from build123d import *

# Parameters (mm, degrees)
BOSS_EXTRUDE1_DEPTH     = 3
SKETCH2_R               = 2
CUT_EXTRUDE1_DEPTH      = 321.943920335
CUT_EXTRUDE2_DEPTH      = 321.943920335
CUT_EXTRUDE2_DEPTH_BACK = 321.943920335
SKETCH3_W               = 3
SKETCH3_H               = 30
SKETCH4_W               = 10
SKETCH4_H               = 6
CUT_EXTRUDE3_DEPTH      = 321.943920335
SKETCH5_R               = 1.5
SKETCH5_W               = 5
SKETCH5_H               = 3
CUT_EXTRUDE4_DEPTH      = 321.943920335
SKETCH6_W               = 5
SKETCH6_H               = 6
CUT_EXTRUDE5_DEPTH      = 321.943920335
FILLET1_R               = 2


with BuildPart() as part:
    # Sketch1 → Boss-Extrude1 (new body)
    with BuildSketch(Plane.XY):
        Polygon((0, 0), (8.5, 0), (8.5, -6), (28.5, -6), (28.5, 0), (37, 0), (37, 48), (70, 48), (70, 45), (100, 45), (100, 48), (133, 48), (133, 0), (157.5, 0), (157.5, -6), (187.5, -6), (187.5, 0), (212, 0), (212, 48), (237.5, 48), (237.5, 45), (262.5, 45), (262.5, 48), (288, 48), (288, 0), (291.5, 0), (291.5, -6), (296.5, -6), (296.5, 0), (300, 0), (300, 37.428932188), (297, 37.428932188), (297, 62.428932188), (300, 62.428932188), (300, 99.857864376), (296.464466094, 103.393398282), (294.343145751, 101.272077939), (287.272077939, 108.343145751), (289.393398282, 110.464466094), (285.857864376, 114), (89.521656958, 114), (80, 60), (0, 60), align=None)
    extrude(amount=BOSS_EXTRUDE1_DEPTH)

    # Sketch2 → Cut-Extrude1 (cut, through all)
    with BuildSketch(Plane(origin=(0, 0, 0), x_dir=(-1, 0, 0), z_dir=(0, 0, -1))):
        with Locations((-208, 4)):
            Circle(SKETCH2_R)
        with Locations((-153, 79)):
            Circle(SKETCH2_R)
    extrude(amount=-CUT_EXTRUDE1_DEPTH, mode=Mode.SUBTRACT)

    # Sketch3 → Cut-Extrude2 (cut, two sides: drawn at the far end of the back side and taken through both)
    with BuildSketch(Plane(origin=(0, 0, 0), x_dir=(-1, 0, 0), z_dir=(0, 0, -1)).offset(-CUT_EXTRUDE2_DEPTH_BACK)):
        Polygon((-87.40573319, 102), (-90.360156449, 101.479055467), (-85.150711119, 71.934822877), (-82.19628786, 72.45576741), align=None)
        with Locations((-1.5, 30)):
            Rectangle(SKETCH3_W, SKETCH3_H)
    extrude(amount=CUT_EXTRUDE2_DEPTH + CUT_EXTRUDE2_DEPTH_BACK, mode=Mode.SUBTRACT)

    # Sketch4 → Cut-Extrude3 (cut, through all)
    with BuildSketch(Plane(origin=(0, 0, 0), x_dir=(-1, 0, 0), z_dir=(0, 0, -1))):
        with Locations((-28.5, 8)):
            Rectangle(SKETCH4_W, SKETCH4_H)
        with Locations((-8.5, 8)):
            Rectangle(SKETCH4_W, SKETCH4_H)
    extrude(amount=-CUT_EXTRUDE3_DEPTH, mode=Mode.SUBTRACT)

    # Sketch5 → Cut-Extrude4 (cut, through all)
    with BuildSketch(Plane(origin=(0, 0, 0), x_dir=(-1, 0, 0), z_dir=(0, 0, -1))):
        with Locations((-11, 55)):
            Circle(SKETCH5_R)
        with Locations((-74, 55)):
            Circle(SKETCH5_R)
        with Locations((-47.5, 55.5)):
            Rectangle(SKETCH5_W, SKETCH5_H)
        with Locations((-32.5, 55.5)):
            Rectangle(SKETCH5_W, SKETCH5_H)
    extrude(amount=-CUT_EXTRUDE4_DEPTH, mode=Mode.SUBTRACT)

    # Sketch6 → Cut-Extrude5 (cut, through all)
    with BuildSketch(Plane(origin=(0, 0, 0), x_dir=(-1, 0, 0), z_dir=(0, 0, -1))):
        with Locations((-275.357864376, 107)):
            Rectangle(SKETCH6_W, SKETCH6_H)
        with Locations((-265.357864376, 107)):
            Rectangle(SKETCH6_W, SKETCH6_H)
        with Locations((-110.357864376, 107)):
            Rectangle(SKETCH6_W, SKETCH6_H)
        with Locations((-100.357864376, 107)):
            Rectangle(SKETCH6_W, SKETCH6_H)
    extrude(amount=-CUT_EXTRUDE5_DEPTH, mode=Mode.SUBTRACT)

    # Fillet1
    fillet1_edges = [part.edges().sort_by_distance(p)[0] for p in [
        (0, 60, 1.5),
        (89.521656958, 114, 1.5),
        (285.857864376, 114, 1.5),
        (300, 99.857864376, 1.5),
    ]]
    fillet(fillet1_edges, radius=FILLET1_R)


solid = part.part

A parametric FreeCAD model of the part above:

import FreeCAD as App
import Part
import Sketcher
Q = App.Units.Quantity


def edges_at(feature, points):
    """Names of the edges that pass closest to the given points."""
    edges = feature.Shape.Edges
    near = lambda p: min(range(len(edges)), key=lambda i: edges[i].distToShape(Part.Vertex(*p))[0])
    return sorted({f"Edge{near(p) + 1}" for p in points})


def add_polygon(sketch, points):
    """Adds a closed chain of lines whose ends are joined by coincident constraints."""
    first, n = sketch.GeometryCount, len(points)
    for a, b in zip(points, points[1:] + points[:1]):
        sketch.addGeometry(Part.LineSegment(App.Vector(*a, 0), App.Vector(*b, 0)), False)
    for i in range(n):
        sketch.addConstraint(Sketcher.Constraint("Coincident", first + i, 2, first + (i + 1) % n, 1))

doc = App.newDocument("Part")
body = doc.addObject("PartDesign::Body", "Body")

sketch1 = doc.addObject("Sketcher::SketchObject", "Sketch")
body.addObject(sketch1)
sketch1.AttachmentSupport = (doc.XY_Plane, [""])
sketch1.MapMode = "FlatFace"
add_polygon(sketch1, [(0, 0), (8.5, 0), (8.5, -6), (28.5, -6), (28.5, 0), (37, 0), (37, 48), (70, 48), (70, 45), (100, 45), (100, 48), (133, 48), (133, 0), (157.5, 0), (157.5, -6), (187.5, -6), (187.5, 0), (212, 0), (212, 48), (237.5, 48), (237.5, 45), (262.5, 45), (262.5, 48), (288, 48), (288, 0), (291.5, 0), (291.5, -6), (296.5, -6), (296.5, 0), (300, 0), (300, 37.428932), (297, 37.428932), (297, 62.428932), (300, 62.428932), (300, 99.857864), (296.464466, 103.393398), (294.343146, 101.272078), (287.272078, 108.343146), (289.393398, 110.464466), (285.857864, 114), (89.521657, 114), (80, 60), (0, 60)])
sketch1.addConstraint(Sketcher.Constraint("Horizontal", 0))
sketch1.addConstraint(Sketcher.Constraint("Vertical", 1))
sketch1.addConstraint(Sketcher.Constraint("Horizontal", 2))
sketch1.addConstraint(Sketcher.Constraint("Vertical", 3))
sketch1.addConstraint(Sketcher.Constraint("Horizontal", 4))
sketch1.addConstraint(Sketcher.Constraint("Vertical", 5))
sketch1.addConstraint(Sketcher.Constraint("Horizontal", 6))
sketch1.addConstraint(Sketcher.Constraint("Vertical", 7))
sketch1.addConstraint(Sketcher.Constraint("Horizontal", 8))
sketch1.addConstraint(Sketcher.Constraint("Vertical", 9))
sketch1.addConstraint(Sketcher.Constraint("Horizontal", 10))
sketch1.addConstraint(Sketcher.Constraint("Vertical", 11))
sketch1.addConstraint(Sketcher.Constraint("Horizontal", 12))
sketch1.addConstraint(Sketcher.Constraint("Vertical", 13))
sketch1.addConstraint(Sketcher.Constraint("Horizontal", 14))
sketch1.addConstraint(Sketcher.Constraint("Vertical", 15))
sketch1.addConstraint(Sketcher.Constraint("Horizontal", 16))
sketch1.addConstraint(Sketcher.Constraint("Vertical", 17))
sketch1.addConstraint(Sketcher.Constraint("Horizontal", 18))
sketch1.addConstraint(Sketcher.Constraint("Vertical", 19))
sketch1.addConstraint(Sketcher.Constraint("Horizontal", 20))
sketch1.addConstraint(Sketcher.Constraint("Vertical", 21))
sketch1.addConstraint(Sketcher.Constraint("Horizontal", 22))
sketch1.addConstraint(Sketcher.Constraint("Vertical", 23))
sketch1.addConstraint(Sketcher.Constraint("Horizontal", 24))
sketch1.addConstraint(Sketcher.Constraint("Vertical", 25))
sketch1.addConstraint(Sketcher.Constraint("Horizontal", 26))
sketch1.addConstraint(Sketcher.Constraint("Vertical", 27))
sketch1.addConstraint(Sketcher.Constraint("Horizontal", 28))
sketch1.addConstraint(Sketcher.Constraint("Vertical", 29))
sketch1.addConstraint(Sketcher.Constraint("Horizontal", 30))
sketch1.addConstraint(Sketcher.Constraint("Vertical", 31))
sketch1.addConstraint(Sketcher.Constraint("Horizontal", 32))
sketch1.addConstraint(Sketcher.Constraint("Vertical", 33))
sketch1.addConstraint(Sketcher.Constraint("Horizontal", 39))
sketch1.addConstraint(Sketcher.Constraint("Horizontal", 41))
sketch1.addConstraint(Sketcher.Constraint("Vertical", 42))
sketch1.addConstraint(Sketcher.Constraint("Coincident", 42, 2, -1, 1))
sketch1.addConstraint(Sketcher.Constraint("PointOnObject", 3, 2, -1))
sketch1.addConstraint(Sketcher.Constraint("PointOnObject", 11, 2, -1))
sketch1.addConstraint(Sketcher.Constraint("PointOnObject", 15, 2, -1))
sketch1.addConstraint(Sketcher.Constraint("PointOnObject", 23, 2, -1))
sketch1.addConstraint(Sketcher.Constraint("PointOnObject", 27, 2, -1))
sketch1.addConstraint(Sketcher.Constraint("Perpendicular", 34, 35))
sketch1.addConstraint(Sketcher.Constraint("Perpendicular", 35, 36))
sketch1.addConstraint(Sketcher.Constraint("Perpendicular", 36, 37))
sketch1.addConstraint(Sketcher.Constraint("Perpendicular", 37, 38))
sketch1.addConstraint(Sketcher.Constraint("Horizontal", 6, 2, 9, 2))
sketch1.addConstraint(Sketcher.Constraint("Horizontal", 2, 2, 13, 2))
sketch1.addConstraint(Sketcher.Constraint("Horizontal", 10, 2, 17, 2))
sketch1.addConstraint(Sketcher.Constraint("Horizontal", 8, 2, 19, 2))
sketch1.addConstraint(Sketcher.Constraint("Horizontal", 18, 2, 21, 2))
sketch1.addConstraint(Sketcher.Constraint("Horizontal", 14, 2, 25, 2))
sketch1.addConstraint(Sketcher.Constraint("Vertical", 29, 2, 32, 2))
sketch1.addConstraint(Sketcher.Constraint("Equal", 0, 4))
sketch1.addConstraint(Sketcher.Constraint("Equal", 6, 10))
sketch1.addConstraint(Sketcher.Constraint("Equal", 8, 14))
sketch1.addConstraint(Sketcher.Constraint("Equal", 12, 16))
sketch1.addConstraint(Sketcher.Constraint("Equal", 18, 22))
sketch1.addConstraint(Sketcher.Constraint("Equal", 24, 28))
sketch1.addConstraint(Sketcher.Constraint("Equal", 32, 7))
sketch1.addConstraint(Sketcher.Constraint("Equal", 20, 31))
sketch1.addConstraint(Sketcher.Constraint("Equal", 29, 33))
sketch1.addConstraint(Sketcher.Constraint("Equal", 35, 37))
sketch1.addConstraint(Sketcher.Constraint("Equal", 34, 38))
sketch1.addConstraint(Sketcher.Constraint("DistanceX", 2, 1, 2, 2, Q("20 mm")))
sketch1.addConstraint(Sketcher.Constraint("DistanceX", 6, 1, 6, 2, Q("33 mm")))
sketch1.addConstraint(Sketcher.Constraint("DistanceX", 8, 1, 8, 2, Q("30 mm")))
sketch1.addConstraint(Sketcher.Constraint("DistanceX", 20, 1, 20, 2, Q("25 mm")))
sketch1.addConstraint(Sketcher.Constraint("DistanceX", 26, 1, 26, 2, Q("5 mm")))
sketch1.addConstraint(Sketcher.Constraint("DistanceX", 30, 2, 30, 1, Q("3 mm")))
sketch1.addConstraint(Sketcher.Constraint("DistanceX", 41, 2, 41, 1, Q("80 mm")))
sketch1.addConstraint(Sketcher.Constraint("DistanceY", 1, 2, 1, 1, Q("6 mm")))
sketch1.addConstraint(Sketcher.Constraint("DistanceY", 5, 1, 5, 2, Q("48 mm")))
sketch1.addConstraint(Sketcher.Constraint("DistanceY", 42, 2, 42, 1, Q("60 mm")))
sketch1.addConstraint(Sketcher.Constraint("Angle", 34, Q("135 deg")))
sketch1.addConstraint(Sketcher.Constraint("Angle", 40, Q("-100 deg")))
sketch1.addConstraint(Sketcher.Constraint("Distance", 34, Q("5 mm")))
sketch1.addConstraint(Sketcher.Constraint("Distance", 35, Q("3 mm")))
sketch1.addConstraint(Sketcher.Constraint("Distance", 36, Q("10 mm")))
sketch1.addConstraint(Sketcher.Constraint("DistanceX", 0, 1, 0, 2, Q("8.5 mm")))
sketch1.addConstraint(Sketcher.Constraint("DistanceX", 12, 1, 12, 2, Q("24.5 mm")))
sketch1.addConstraint(Sketcher.Constraint("DistanceX", 18, 1, 18, 2, Q("25.5 mm")))
sketch1.addConstraint(Sketcher.Constraint("DistanceX", 24, 1, 24, 2, Q("3.5 mm")))
sketch1.addConstraint(Sketcher.Constraint("DistanceY", -1, 1, 38, 2, Q("114 mm")))
pad1 = doc.addObject("PartDesign::Pad", "Pad")
body.addObject(pad1)
pad1.Profile = sketch1
pad1.Length = 3

sketch2 = doc.addObject("Sketcher::SketchObject", "Sketch001")
body.addObject(sketch2)
sketch2.AttachmentSupport = (doc.XY_Plane, [""])
sketch2.MapMode = "FlatFace"
sketch2.addGeometry(Part.Circle(App.Vector(208, 4, 0), App.Vector(0, 0, 1), 2), False)
sketch2.addGeometry(Part.Circle(App.Vector(153, 79, 0), App.Vector(0, 0, 1), 2), False)
sketch2.addConstraint(Sketcher.Constraint("Equal", 0, 1))
sketch2.addConstraint(Sketcher.Constraint("Diameter", 0, Q("4 mm")))
sketch2.addConstraint(Sketcher.Constraint("DistanceX", -1, 1, 0, 3, Q("208 mm")))
sketch2.addConstraint(Sketcher.Constraint("DistanceY", -1, 1, 0, 3, Q("4 mm")))
sketch2.addConstraint(Sketcher.Constraint("DistanceX", -1, 1, 1, 3, Q("153 mm")))
sketch2.addConstraint(Sketcher.Constraint("DistanceY", -1, 1, 1, 3, Q("79 mm")))
pocket1 = doc.addObject("PartDesign::Pocket", "Pocket")
body.addObject(pocket1)
pocket1.Profile = sketch2
pocket1.Type = "ThroughAll"
pocket1.Reversed = True

sketch3 = doc.addObject("Sketcher::SketchObject", "Sketch002")
body.addObject(sketch3)
sketch3.AttachmentSupport = (doc.XY_Plane, [""])
sketch3.MapMode = "FlatFace"
add_polygon(sketch3, [(87.405733, 102), (90.360156, 101.479055), (85.150711, 71.934823), (82.196288, 72.455767)])
add_polygon(sketch3, [(3, 45), (3, 15), (0, 15), (0, 45)])
sketch3.addConstraint(Sketcher.Constraint("Vertical", 4))
sketch3.addConstraint(Sketcher.Constraint("Horizontal", 5))
sketch3.addConstraint(Sketcher.Constraint("Vertical", 6))
sketch3.addConstraint(Sketcher.Constraint("Horizontal", 7))
sketch3.addConstraint(Sketcher.Constraint("PointOnObject", 5, 2, -2))
sketch3.addConstraint(Sketcher.Constraint("Perpendicular", 0, 1))
sketch3.addConstraint(Sketcher.Constraint("Perpendicular", 1, 2))
sketch3.addConstraint(Sketcher.Constraint("Perpendicular", 2, 3))
sketch3.addConstraint(Sketcher.Constraint("DistanceX", 5, 2, 5, 1, Q("3 mm")))
sketch3.addConstraint(Sketcher.Constraint("DistanceY", 4, 2, 4, 1, Q("30 mm")))
sketch3.addConstraint(Sketcher.Constraint("Angle", 0, Q("-10 deg")))
sketch3.addConstraint(Sketcher.Constraint("Distance", 0, Q("3 mm")))
sketch3.addConstraint(Sketcher.Constraint("Distance", 1, Q("30 mm")))
sketch3.addConstraint(Sketcher.Constraint("DistanceY", -1, 1, 3, 2, Q("102 mm")))
sketch3.addConstraint(Sketcher.Constraint("DistanceY", -1, 1, 4, 2, Q("15 mm")))
sketch3.addConstraint(Sketcher.Constraint("DistanceX", -1, 1, 1, 2, Q("85.150711 mm")))
pocket2 = doc.addObject("PartDesign::Pocket", "Pocket001")
body.addObject(pocket2)
pocket2.Profile = sketch3
pocket2.Type = "ThroughAll"
pocket2.Midplane = True

sketch4 = doc.addObject("Sketcher::SketchObject", "Sketch003")
body.addObject(sketch4)
sketch4.AttachmentSupport = (doc.XY_Plane, [""])
sketch4.MapMode = "FlatFace"
add_polygon(sketch4, [(33.5, 11), (33.5, 5), (23.5, 5), (23.5, 11)])
add_polygon(sketch4, [(13.5, 11), (13.5, 5), (3.5, 5), (3.5, 11)])
sketch4.addConstraint(Sketcher.Constraint("Vertical", 0))
sketch4.addConstraint(Sketcher.Constraint("Horizontal", 1))
sketch4.addConstraint(Sketcher.Constraint("Vertical", 2))
sketch4.addConstraint(Sketcher.Constraint("Horizontal", 3))
sketch4.addConstraint(Sketcher.Constraint("Vertical", 4))
sketch4.addConstraint(Sketcher.Constraint("Horizontal", 5))
sketch4.addConstraint(Sketcher.Constraint("Vertical", 6))
sketch4.addConstraint(Sketcher.Constraint("Horizontal", 7))
sketch4.addConstraint(Sketcher.Constraint("Horizontal", 1, 2, 4, 2))
sketch4.addConstraint(Sketcher.Constraint("Horizontal", 3, 2, 6, 2))
sketch4.addConstraint(Sketcher.Constraint("Equal", 3, 5))
sketch4.addConstraint(Sketcher.Constraint("DistanceX", 1, 2, 1, 1, Q("10 mm")))
sketch4.addConstraint(Sketcher.Constraint("DistanceY", 0, 2, 0, 1, Q("6 mm")))
sketch4.addConstraint(Sketcher.Constraint("DistanceY", -1, 1, 0, 2, Q("5 mm")))
sketch4.addConstraint(Sketcher.Constraint("DistanceX", 4, 2, 1, 2, Q("10 mm")))
sketch4.addConstraint(Sketcher.Constraint("DistanceX", -1, 1, 0, 2, Q("33.5 mm")))
pocket3 = doc.addObject("PartDesign::Pocket", "Pocket002")
body.addObject(pocket3)
pocket3.Profile = sketch4
pocket3.Type = "ThroughAll"
pocket3.Reversed = True

sketch5 = doc.addObject("Sketcher::SketchObject", "Sketch004")
body.addObject(sketch5)
sketch5.AttachmentSupport = (doc.XY_Plane, [""])
sketch5.MapMode = "FlatFace"
sketch5.addGeometry(Part.Circle(App.Vector(11, 55, 0), App.Vector(0, 0, 1), 1.5), False)
sketch5.addGeometry(Part.Circle(App.Vector(74, 55, 0), App.Vector(0, 0, 1), 1.5), False)
add_polygon(sketch5, [(50, 57), (50, 54), (45, 54), (45, 57)])
add_polygon(sketch5, [(35, 57), (35, 54), (30, 54), (30, 57)])
sketch5.addConstraint(Sketcher.Constraint("Vertical", 2))
sketch5.addConstraint(Sketcher.Constraint("Horizontal", 3))
sketch5.addConstraint(Sketcher.Constraint("Vertical", 4))
sketch5.addConstraint(Sketcher.Constraint("Horizontal", 5))
sketch5.addConstraint(Sketcher.Constraint("Vertical", 6))
sketch5.addConstraint(Sketcher.Constraint("Horizontal", 7))
sketch5.addConstraint(Sketcher.Constraint("Vertical", 8))
sketch5.addConstraint(Sketcher.Constraint("Horizontal", 9))
sketch5.addConstraint(Sketcher.Constraint("Equal", 0, 1))
sketch5.addConstraint(Sketcher.Constraint("Horizontal", 0, 3, 1, 3))
sketch5.addConstraint(Sketcher.Constraint("Horizontal", 3, 2, 6, 2))
sketch5.addConstraint(Sketcher.Constraint("Horizontal", 5, 2, 8, 2))
sketch5.addConstraint(Sketcher.Constraint("Equal", 5, 7))
sketch5.addConstraint(Sketcher.Constraint("Diameter", 0, Q("3 mm")))
sketch5.addConstraint(Sketcher.Constraint("DistanceX", 3, 2, 3, 1, Q("5 mm")))
sketch5.addConstraint(Sketcher.Constraint("DistanceY", 2, 2, 2, 1, Q("3 mm")))
sketch5.addConstraint(Sketcher.Constraint("DistanceX", -1, 1, 0, 3, Q("11 mm")))
sketch5.addConstraint(Sketcher.Constraint("DistanceY", -1, 1, 0, 3, Q("55 mm")))
sketch5.addConstraint(Sketcher.Constraint("DistanceX", -1, 1, 1, 3, Q("74 mm")))
sketch5.addConstraint(Sketcher.Constraint("DistanceX", -1, 1, 2, 2, Q("50 mm")))
sketch5.addConstraint(Sketcher.Constraint("DistanceY", -1, 1, 2, 2, Q("54 mm")))
sketch5.addConstraint(Sketcher.Constraint("DistanceX", -1, 1, 6, 2, Q("35 mm")))
pocket4 = doc.addObject("PartDesign::Pocket", "Pocket003")
body.addObject(pocket4)
pocket4.Profile = sketch5
pocket4.Type = "ThroughAll"
pocket4.Reversed = True

sketch6 = doc.addObject("Sketcher::SketchObject", "Sketch005")
body.addObject(sketch6)
sketch6.AttachmentSupport = (doc.XY_Plane, [""])
sketch6.MapMode = "FlatFace"
add_polygon(sketch6, [(277.857864, 110), (277.857864, 104), (272.857864, 104), (272.857864, 110)])
add_polygon(sketch6, [(267.857864, 110), (267.857864, 104), (262.857864, 104), (262.857864, 110)])
add_polygon(sketch6, [(112.857864, 110), (112.857864, 104), (107.857864, 104), (107.857864, 110)])
add_polygon(sketch6, [(102.857864, 110), (102.857864, 104), (97.857864, 104), (97.857864, 110)])
sketch6.addConstraint(Sketcher.Constraint("Vertical", 0))
sketch6.addConstraint(Sketcher.Constraint("Horizontal", 1))
sketch6.addConstraint(Sketcher.Constraint("Vertical", 2))
sketch6.addConstraint(Sketcher.Constraint("Horizontal", 3))
sketch6.addConstraint(Sketcher.Constraint("Vertical", 4))
sketch6.addConstraint(Sketcher.Constraint("Horizontal", 5))
sketch6.addConstraint(Sketcher.Constraint("Vertical", 6))
sketch6.addConstraint(Sketcher.Constraint("Horizontal", 7))
sketch6.addConstraint(Sketcher.Constraint("Vertical", 8))
sketch6.addConstraint(Sketcher.Constraint("Horizontal", 9))
sketch6.addConstraint(Sketcher.Constraint("Vertical", 10))
sketch6.addConstraint(Sketcher.Constraint("Horizontal", 11))
sketch6.addConstraint(Sketcher.Constraint("Vertical", 12))
sketch6.addConstraint(Sketcher.Constraint("Horizontal", 13))
sketch6.addConstraint(Sketcher.Constraint("Vertical", 14))
sketch6.addConstraint(Sketcher.Constraint("Horizontal", 15))
sketch6.addConstraint(Sketcher.Constraint("Horizontal", 1, 2, 4, 2))
sketch6.addConstraint(Sketcher.Constraint("Horizontal", 3, 2, 6, 2))
sketch6.addConstraint(Sketcher.Constraint("Horizontal", 5, 2, 8, 2))
sketch6.addConstraint(Sketcher.Constraint("Horizontal", 7, 2, 10, 2))
sketch6.addConstraint(Sketcher.Constraint("Horizontal", 9, 2, 12, 2))
sketch6.addConstraint(Sketcher.Constraint("Horizontal", 11, 2, 14, 2))
sketch6.addConstraint(Sketcher.Constraint("Equal", 3, 5))
sketch6.addConstraint(Sketcher.Constraint("Equal", 7, 9))
sketch6.addConstraint(Sketcher.Constraint("Equal", 11, 13))
sketch6.addConstraint(Sketcher.Constraint("DistanceX", 1, 2, 1, 1, Q("5 mm")))
sketch6.addConstraint(Sketcher.Constraint("DistanceY", 0, 2, 0, 1, Q("6 mm")))
sketch6.addConstraint(Sketcher.Constraint("DistanceY", -1, 1, 0, 2, Q("104 mm")))
sketch6.addConstraint(Sketcher.Constraint("DistanceX", 4, 2, 1, 2, Q("5 mm")))
sketch6.addConstraint(Sketcher.Constraint("DistanceX", 8, 2, 5, 2, Q("150 mm")))
sketch6.addConstraint(Sketcher.Constraint("DistanceX", 12, 2, 9, 2, Q("5 mm")))
sketch6.addConstraint(Sketcher.Constraint("DistanceX", -1, 1, 0, 2, Q("277.857864 mm")))
pocket5 = doc.addObject("PartDesign::Pocket", "Pocket004")
body.addObject(pocket5)
pocket5.Profile = sketch6
pocket5.Type = "ThroughAll"
pocket5.Reversed = True
doc.recompute()

fillet = doc.addObject("PartDesign::Fillet", "Fillet")
body.addObject(fillet)
fillet.Base = (pocket5, edges_at(pocket5, [
    (0, 60, 1.5),
    (89.522, 114, 1.5),
    (285.858, 114, 1.5),
    (300, 99.858, 1.5),
]))
fillet.Radius = 2

doc.recompute()
